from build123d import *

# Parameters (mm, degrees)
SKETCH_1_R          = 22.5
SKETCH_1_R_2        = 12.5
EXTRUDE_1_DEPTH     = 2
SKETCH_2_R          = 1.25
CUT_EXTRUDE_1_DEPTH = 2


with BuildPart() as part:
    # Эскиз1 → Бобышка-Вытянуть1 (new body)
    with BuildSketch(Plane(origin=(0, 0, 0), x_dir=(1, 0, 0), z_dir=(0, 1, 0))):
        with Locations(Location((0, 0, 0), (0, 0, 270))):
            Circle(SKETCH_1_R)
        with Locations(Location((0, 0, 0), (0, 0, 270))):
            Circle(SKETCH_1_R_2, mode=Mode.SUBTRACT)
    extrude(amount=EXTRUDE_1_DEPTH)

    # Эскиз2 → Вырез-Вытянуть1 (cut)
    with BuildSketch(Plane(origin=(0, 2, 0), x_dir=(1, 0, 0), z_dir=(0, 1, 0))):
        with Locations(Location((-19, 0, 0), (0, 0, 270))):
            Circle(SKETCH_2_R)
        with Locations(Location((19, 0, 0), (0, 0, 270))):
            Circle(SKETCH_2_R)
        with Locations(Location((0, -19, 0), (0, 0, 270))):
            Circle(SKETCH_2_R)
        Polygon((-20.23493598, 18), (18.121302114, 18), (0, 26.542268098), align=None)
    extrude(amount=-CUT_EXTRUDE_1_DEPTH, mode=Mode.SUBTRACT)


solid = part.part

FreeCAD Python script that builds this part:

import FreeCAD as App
import Part
import Sketcher
from FreeCAD import Vector
Q = App.Units.Quantity

doc = App.newDocument("Part")
body = doc.addObject("PartDesign::Body", "Body")

# Sketch on XZ plane
sketch1 = doc.addObject("Sketcher::SketchObject", "Sketch")
body.addObject(sketch1)
sketch1.AttachmentSupport = (doc.XZ_Plane, [""])
sketch1.MapMode = "FlatFace"
sketch1.addGeometry(Part.Circle(Vector(0, 0, 0), Vector(0, 0, 1), 22), False)
sketch1.addGeometry(Part.Circle(Vector(0, 0, 0), Vector(0, 0, 1), 12), False)
sketch1.addConstraint(Sketcher.Constraint("Coincident", 0, 3, -1, 1))
sketch1.addConstraint(Sketcher.Constraint("Coincident", 1, 3, -1, 1))
sketch1.addConstraint(Sketcher.Constraint("Diameter", 0, Q("45 mm")))
sketch1.addConstraint(Sketcher.Constraint("Diameter", 1, Q("25 mm")))
pad1 = doc.addObject("PartDesign::Pad", "Pad")
body.addObject(pad1)
pad1.Profile = sketch1
pad1.Length = 2
pad1.Reversed = True

# Sketch on XZ plane
sketch2 = doc.addObject("Sketcher::SketchObject", "Sketch001")
body.addObject(sketch2)
sketch2.AttachmentSupport = (doc.XZ_Plane, [""])
sketch2.MapMode = "FlatFace"
sketch2.AttachmentOffset = App.Placement(Vector(0, 0, -2), App.Rotation())
sketch2.addGeometry(Part.Circle(Vector(-19, 0, 0), Vector(0, 0, 1), 1.2), False)
sketch2.addGeometry(Part.Circle(Vector(19, 0, 0), Vector(0, 0, 1), 1.2), False)
sketch2.addGeometry(Part.Circle(Vector(0, 19, 0), Vector(0, 0, 1), 1.2), False)
sketch2.addGeometry(Part.LineSegment(Vector(-20.2, -18, 0), Vector(18.1, -18, 0)), False)
sketch2.addGeometry(Part.LineSegment(Vector(18.1, -18, 0), Vector(0, -26.5, 0)), False)
sketch2.addGeometry(Part.LineSegment(Vector(0, -26.5, 0), Vector(-20.2, -18, 0)), False)
sketch2.addConstraint(Sketcher.Constraint("Coincident", 3, 2, 4, 1))
sketch2.addConstraint(Sketcher.Constraint("Coincident", 4, 2, 5, 1))
sketch2.addConstraint(Sketcher.Constraint("Coincident", 5, 2, 3, 1))
sketch2.addConstraint(Sketcher.Constraint("Horizontal", 3))
sketch2.addConstraint(Sketcher.Constraint("Equal", 0, 1))
sketch2.addConstraint(Sketcher.Constraint("Equal", 1, 2))
sketch2.addConstraint(Sketcher.Constraint("Symmetric", 0, 3, 1, 3, -1, 1))
sketch2.addConstraint(Sketcher.Constraint("PointOnObject", 0, 3, -1))
sketch2.addConstraint(Sketcher.Constraint("PointOnObject", 2, 3, -2))
sketch2.addConstraint(Sketcher.Constraint("PointOnObject", 4, 2, -2))
sketch2.addConstraint(Sketcher.Constraint("Diameter", 0, Q("2.5 mm")))
sketch2.addConstraint(Sketcher.Constraint("DistanceX", 0, 3, -1, 1, Q("19 mm")))
sketch2.addConstraint(Sketcher.Constraint("DistanceY", -1, 1, 2, 3, Q("19 mm")))
sketch2.addConstraint(Sketcher.Constraint("DistanceY", 3, 2, -1, 1, Q("18 mm")))
sketch2.addConstraint(Sketcher.Constraint("DistanceX", 3, 1, 3, 2, Q("38.356238 mm")))
sketch2.addConstraint(Sketcher.Constraint("Distance", 4, Q("20.03377 mm")))
sketch2.addConstraint(Sketcher.Constraint("Distance", 5, Q("21.964129 mm")))
pocket1 = doc.addObject("PartDesign::Pocket", "Pocket")
body.addObject(pocket1)
pocket1.Profile = sketch2
pocket1.Length = 2
pocket1.Reversed = True

doc.recompute()
